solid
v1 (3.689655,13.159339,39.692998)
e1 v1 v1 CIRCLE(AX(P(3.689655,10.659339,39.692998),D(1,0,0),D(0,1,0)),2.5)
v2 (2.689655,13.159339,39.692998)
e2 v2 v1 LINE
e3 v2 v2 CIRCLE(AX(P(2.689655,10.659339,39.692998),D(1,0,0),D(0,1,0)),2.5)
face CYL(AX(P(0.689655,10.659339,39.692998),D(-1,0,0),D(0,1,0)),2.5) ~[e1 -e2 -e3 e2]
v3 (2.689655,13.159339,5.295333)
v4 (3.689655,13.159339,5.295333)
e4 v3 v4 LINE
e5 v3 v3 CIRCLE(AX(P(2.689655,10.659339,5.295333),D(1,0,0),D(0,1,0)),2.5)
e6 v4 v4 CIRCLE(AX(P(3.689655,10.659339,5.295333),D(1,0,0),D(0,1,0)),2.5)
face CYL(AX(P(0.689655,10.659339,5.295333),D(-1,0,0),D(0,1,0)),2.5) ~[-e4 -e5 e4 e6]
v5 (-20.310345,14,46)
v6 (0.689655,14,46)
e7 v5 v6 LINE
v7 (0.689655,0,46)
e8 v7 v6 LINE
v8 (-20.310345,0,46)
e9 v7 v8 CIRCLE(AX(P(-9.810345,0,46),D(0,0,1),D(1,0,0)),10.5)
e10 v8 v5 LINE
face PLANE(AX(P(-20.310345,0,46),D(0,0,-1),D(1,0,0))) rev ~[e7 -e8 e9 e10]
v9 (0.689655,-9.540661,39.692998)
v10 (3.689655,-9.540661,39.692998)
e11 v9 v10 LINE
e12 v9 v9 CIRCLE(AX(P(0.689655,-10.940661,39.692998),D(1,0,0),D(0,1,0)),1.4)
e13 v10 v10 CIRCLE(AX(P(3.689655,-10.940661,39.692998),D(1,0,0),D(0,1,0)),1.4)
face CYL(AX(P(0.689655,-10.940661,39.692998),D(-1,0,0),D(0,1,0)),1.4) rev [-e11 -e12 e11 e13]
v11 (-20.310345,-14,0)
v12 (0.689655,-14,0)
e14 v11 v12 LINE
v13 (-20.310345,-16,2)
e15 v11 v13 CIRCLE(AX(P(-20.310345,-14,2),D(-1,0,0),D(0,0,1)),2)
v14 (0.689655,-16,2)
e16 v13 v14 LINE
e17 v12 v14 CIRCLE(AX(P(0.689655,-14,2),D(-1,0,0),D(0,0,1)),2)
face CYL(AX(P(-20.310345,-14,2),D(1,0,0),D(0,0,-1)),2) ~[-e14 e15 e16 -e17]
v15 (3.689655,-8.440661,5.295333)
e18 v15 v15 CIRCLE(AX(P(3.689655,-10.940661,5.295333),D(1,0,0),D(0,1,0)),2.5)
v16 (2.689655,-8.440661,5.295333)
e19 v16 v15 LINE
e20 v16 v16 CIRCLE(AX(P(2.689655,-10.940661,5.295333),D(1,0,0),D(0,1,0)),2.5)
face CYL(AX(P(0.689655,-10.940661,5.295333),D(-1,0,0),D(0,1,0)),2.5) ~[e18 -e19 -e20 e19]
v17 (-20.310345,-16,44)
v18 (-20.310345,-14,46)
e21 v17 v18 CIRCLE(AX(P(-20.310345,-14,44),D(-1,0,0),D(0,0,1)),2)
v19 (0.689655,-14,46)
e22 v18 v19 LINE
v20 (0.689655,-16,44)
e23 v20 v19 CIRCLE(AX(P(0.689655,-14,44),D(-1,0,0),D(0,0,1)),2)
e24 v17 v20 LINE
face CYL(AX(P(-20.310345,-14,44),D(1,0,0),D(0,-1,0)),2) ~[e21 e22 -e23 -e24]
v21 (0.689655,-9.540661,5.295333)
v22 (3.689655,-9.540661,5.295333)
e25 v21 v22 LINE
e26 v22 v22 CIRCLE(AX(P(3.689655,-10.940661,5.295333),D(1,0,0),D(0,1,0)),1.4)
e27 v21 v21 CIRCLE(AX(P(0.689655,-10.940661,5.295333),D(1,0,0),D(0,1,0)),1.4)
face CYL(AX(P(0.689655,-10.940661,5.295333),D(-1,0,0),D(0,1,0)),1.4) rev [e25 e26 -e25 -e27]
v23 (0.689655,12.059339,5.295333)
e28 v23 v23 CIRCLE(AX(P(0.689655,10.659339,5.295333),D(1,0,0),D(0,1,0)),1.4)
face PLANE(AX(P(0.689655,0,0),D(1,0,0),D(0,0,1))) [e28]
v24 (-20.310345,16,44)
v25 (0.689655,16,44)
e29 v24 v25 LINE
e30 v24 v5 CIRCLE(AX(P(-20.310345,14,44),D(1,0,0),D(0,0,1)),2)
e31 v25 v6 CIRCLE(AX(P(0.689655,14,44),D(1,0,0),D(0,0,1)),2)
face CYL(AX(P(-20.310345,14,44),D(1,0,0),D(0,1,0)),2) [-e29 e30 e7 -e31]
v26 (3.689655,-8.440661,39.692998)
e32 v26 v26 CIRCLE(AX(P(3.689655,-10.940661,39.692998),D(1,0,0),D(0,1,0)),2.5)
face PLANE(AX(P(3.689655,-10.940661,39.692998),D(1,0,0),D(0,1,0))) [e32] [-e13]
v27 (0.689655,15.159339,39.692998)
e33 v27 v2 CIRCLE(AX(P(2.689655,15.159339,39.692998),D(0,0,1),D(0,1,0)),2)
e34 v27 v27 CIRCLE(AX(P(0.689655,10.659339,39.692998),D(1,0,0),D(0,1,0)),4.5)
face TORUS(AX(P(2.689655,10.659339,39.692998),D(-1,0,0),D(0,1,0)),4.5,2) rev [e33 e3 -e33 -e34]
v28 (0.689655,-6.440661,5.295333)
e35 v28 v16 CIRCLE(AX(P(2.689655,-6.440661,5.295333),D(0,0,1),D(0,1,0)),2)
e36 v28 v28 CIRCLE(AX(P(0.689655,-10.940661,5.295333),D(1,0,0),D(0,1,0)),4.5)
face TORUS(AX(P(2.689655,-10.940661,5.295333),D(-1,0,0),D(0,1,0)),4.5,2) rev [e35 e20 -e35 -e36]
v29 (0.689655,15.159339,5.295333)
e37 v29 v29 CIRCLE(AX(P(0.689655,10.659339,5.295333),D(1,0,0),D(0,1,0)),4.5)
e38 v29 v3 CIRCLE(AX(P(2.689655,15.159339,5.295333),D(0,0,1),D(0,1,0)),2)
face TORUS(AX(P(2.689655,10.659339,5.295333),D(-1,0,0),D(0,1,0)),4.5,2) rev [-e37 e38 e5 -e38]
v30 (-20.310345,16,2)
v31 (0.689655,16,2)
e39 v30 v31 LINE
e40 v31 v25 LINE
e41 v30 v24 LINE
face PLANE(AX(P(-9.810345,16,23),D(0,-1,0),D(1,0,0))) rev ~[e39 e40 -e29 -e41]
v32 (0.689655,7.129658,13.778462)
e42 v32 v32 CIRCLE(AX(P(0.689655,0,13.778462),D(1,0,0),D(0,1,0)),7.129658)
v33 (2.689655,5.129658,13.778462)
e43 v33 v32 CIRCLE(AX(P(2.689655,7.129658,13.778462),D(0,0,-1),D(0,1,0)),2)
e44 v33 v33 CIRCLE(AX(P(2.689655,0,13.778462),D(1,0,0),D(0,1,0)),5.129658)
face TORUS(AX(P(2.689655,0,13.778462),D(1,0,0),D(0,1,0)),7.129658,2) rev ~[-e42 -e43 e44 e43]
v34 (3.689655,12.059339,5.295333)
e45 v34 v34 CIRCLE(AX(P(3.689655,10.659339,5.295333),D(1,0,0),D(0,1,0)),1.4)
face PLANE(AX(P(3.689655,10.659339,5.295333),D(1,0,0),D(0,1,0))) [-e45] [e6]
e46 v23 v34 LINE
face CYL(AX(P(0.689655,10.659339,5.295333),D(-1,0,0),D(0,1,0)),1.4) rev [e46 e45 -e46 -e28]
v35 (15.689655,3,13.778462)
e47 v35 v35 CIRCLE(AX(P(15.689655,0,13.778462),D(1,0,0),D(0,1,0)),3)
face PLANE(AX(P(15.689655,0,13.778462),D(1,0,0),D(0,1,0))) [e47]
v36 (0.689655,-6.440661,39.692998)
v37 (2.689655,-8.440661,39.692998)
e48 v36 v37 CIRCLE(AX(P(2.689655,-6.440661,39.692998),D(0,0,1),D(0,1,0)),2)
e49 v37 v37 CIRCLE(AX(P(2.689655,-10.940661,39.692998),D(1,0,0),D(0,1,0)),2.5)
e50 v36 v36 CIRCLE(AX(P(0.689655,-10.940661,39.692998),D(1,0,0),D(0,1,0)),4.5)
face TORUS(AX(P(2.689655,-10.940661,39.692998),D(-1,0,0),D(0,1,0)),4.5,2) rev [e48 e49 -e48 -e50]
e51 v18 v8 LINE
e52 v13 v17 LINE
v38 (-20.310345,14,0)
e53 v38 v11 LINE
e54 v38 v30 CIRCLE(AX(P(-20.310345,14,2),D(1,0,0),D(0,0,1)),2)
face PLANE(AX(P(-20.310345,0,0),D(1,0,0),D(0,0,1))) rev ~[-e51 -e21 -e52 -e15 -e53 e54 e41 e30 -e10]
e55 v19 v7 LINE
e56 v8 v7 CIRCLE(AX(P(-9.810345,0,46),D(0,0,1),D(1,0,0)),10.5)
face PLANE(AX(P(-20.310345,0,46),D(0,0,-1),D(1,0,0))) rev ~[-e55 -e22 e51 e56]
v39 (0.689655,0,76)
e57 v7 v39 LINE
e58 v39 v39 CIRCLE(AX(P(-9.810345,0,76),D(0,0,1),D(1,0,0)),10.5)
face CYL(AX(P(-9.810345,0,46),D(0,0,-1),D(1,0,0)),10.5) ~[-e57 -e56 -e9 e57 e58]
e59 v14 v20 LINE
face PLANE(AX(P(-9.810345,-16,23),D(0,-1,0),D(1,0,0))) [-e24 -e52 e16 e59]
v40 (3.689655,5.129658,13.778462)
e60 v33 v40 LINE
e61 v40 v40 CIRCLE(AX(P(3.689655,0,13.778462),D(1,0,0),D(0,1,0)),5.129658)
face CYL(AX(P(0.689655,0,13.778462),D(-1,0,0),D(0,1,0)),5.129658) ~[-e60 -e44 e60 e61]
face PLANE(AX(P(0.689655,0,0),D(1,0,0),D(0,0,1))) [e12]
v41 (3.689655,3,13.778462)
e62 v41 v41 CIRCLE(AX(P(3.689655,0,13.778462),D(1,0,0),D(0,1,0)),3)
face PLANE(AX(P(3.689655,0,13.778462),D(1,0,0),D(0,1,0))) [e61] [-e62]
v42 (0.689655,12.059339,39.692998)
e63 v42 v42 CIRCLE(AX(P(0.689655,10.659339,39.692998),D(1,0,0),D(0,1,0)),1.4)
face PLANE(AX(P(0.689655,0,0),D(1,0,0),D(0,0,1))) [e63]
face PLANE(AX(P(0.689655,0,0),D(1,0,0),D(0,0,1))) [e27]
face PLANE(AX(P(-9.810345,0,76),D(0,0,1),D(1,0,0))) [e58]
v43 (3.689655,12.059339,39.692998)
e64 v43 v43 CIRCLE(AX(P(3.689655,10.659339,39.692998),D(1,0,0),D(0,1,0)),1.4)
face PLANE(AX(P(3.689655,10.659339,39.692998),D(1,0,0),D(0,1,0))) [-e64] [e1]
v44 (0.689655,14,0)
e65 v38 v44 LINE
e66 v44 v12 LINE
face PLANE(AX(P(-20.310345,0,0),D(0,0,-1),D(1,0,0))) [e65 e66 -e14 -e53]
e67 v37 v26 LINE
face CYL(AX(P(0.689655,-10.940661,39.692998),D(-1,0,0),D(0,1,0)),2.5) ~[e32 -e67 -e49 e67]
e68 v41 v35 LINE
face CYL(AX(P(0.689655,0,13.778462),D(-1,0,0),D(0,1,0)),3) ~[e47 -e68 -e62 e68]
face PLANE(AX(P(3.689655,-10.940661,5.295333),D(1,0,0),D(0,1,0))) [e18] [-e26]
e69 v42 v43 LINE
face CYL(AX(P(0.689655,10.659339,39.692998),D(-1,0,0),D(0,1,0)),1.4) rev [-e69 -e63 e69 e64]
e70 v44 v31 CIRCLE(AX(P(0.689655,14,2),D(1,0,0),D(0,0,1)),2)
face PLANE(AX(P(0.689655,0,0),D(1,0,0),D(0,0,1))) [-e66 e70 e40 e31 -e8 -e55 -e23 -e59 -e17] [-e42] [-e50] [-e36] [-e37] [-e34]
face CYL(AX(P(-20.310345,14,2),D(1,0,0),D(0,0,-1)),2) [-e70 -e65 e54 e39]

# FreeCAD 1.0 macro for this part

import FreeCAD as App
import Part
import Sketcher
Q = App.Units.Quantity


def edges_at(feature, points):
    """Names of the edges that pass closest to the given points."""
    edges = feature.Shape.Edges
    near = lambda p: min(range(len(edges)), key=lambda i: edges[i].distToShape(Part.Vertex(*p))[0])
    return sorted({f"Edge{near(p) + 1}" for p in points})

doc = App.newDocument("Part")
body = doc.addObject("PartDesign::Body", "Body")

# Sketch on XZ plane
sketch1 = body.newObject("Sketcher::SketchObject", "Sketch")
sketch1.AttachmentSupport = (doc.getObject("XZ_Plane"), [""])
sketch1.MapMode = "FlatFace"
sketch1.addGeometry(Part.LineSegment(App.Vector(-20, 46, 0), App.Vector(-20, 0, 0)), False)
sketch1.addGeometry(Part.LineSegment(App.Vector(-20, 0, 0), App.Vector(1, 0, 0)), False)
sketch1.addGeometry(Part.LineSegment(App.Vector(1, 0, 0), App.Vector(1, 46, 0)), False)
sketch1.addGeometry(Part.LineSegment(App.Vector(1, 46, 0), App.Vector(-20, 46, 0)), False)
sketch1.addConstraint(Sketcher.Constraint("Coincident", 0, 2, 1, 1))
sketch1.addConstraint(Sketcher.Constraint("Coincident", 1, 2, 2, 1))
sketch1.addConstraint(Sketcher.Constraint("Coincident", 2, 2, 3, 1))
sketch1.addConstraint(Sketcher.Constraint("Coincident", 3, 2, 0, 1))
sketch1.addConstraint(Sketcher.Constraint("Vertical", 0))
sketch1.addConstraint(Sketcher.Constraint("Horizontal", 1))
sketch1.addConstraint(Sketcher.Constraint("Vertical", 2))
sketch1.addConstraint(Sketcher.Constraint("Horizontal", 3))
sketch1.addConstraint(Sketcher.Constraint("PointOnObject", 0, 2, -1))
sketch1.addConstraint(Sketcher.Constraint("DistanceX", 1, 1, 1, 2, Q("21 mm")))
sketch1.addConstraint(Sketcher.Constraint("DistanceY", 0, 2, 0, 1, Q("46 mm")))
sketch1.addConstraint(Sketcher.Constraint("DistanceX", 0, 2, -1, 1, Q("20.310345 mm")))
pad1 = body.newObject("PartDesign::Pad", "Pad")
pad1.Profile = sketch1
pad1.Length = 32
pad1.Midplane = True

# Sketch on YZ plane
sketch2 = body.newObject("Sketcher::SketchObject", "Sketch001")
sketch2.AttachmentSupport = (doc.getObject("YZ_Plane"), [""])
sketch2.MapMode = "FlatFace"
sketch2.AttachmentOffset = App.Placement(App.Vector(0, 0, 0.689655), App.Rotation())
sketch2.addGeometry(Part.Circle(App.Vector(0, 13.8, 0), App.Vector(0, 0, 1), 3), False)
sketch2.addConstraint(Sketcher.Constraint("PointOnObject", 0, 3, -2))
sketch2.addConstraint(Sketcher.Constraint("Diameter", 0, Q("6 mm")))
sketch2.addConstraint(Sketcher.Constraint("DistanceY", -1, 1, 0, 3, Q("13.778462 mm")))
pad2 = body.newObject("PartDesign::Pad", "Pad001")
pad2.Profile = sketch2
pad2.Length = 15

# Sketch on YZ plane
sketch3 = body.newObject("Sketcher::SketchObject", "Sketch002")
sketch3.AttachmentSupport = (doc.getObject("YZ_Plane"), [""])
sketch3.MapMode = "FlatFace"
sketch3.AttachmentOffset = App.Placement(App.Vector(0, 0, 0.689655), App.Rotation())
sketch3.addGeometry(Part.Circle(App.Vector(-10.9, 39.7, 0), App.Vector(0, 0, 1), 2.5), False)
sketch3.addGeometry(Part.Circle(App.Vector(-10.9, 39.7, 0), App.Vector(0, 0, 1), 1.4), False)
sketch3.addGeometry(Part.Circle(App.Vector(-10.9, 5.3, 0), App.Vector(0, 0, 1), 2.5), False)
sketch3.addGeometry(Part.Circle(App.Vector(-10.9, 5.3, 0), App.Vector(0, 0, 1), 1.4), False)
sketch3.addGeometry(Part.Circle(App.Vector(10.7, 5.3, 0), App.Vector(0, 0, 1), 2.5), False)
sketch3.addGeometry(Part.Circle(App.Vector(10.7, 5.3, 0), App.Vector(0, 0, 1), 1.4), False)
sketch3.addGeometry(Part.Circle(App.Vector(10.7, 39.7, 0), App.Vector(0, 0, 1), 2.5), False)
sketch3.addGeometry(Part.Circle(App.Vector(10.7, 39.7, 0), App.Vector(0, 0, 1), 1.4), False)
sketch3.addGeometry(Part.Circle(App.Vector(0, 13.8, 0), App.Vector(0, 0, 1), 5.1), False)
sketch3.addGeometry(Part.Circle(App.Vector(0, 13.8, 0), App.Vector(0, 0, 1), 3), False)
sketch3.addConstraint(Sketcher.Constraint("Coincident", 1, 3, 0, 3))
sketch3.addConstraint(Sketcher.Constraint("Coincident", 3, 3, 2, 3))
sketch3.addConstraint(Sketcher.Constraint("Coincident", 5, 3, 4, 3))
sketch3.addConstraint(Sketcher.Constraint("Coincident", 7, 3, 6, 3))
sketch3.addConstraint(Sketcher.Constraint("Coincident", 9, 3, 8, 3))
sketch3.addConstraint(Sketcher.Constraint("Equal", 0, 2))
sketch3.addConstraint(Sketcher.Constraint("Equal", 1, 3))
sketch3.addConstraint(Sketcher.Constraint("Equal", 2, 4))
sketch3.addConstraint(Sketcher.Constraint("Equal", 3, 5))
sketch3.addConstraint(Sketcher.Constraint("Equal", 4, 6))
sketch3.addConstraint(Sketcher.Constraint("Equal", 5, 7))
sketch3.addConstraint(Sketcher.Constraint("PointOnObject", 8, 3, -2))
sketch3.addConstraint(Sketcher.Constraint("Horizontal", 3, 3, 4, 3))
sketch3.addConstraint(Sketcher.Constraint("Horizontal", 1, 3, 6, 3))
sketch3.addConstraint(Sketcher.Constraint("Vertical", 1, 3, 2, 3))
sketch3.addConstraint(Sketcher.Constraint("Vertical", 5, 3, 6, 3))
sketch3.addConstraint(Sketcher.Constraint("Diameter", 0, Q("5 mm")))
sketch3.addConstraint(Sketcher.Constraint("Diameter", 9, Q("6 mm")))
sketch3.addConstraint(Sketcher.Constraint("Diameter", 1, Q("2.8 mm")))
sketch3.addConstraint(Sketcher.Constraint("DistanceX", 2, 3, 4, 3, Q("21.6 mm")))
sketch3.addConstraint(Sketcher.Constraint("Diameter", 8, Q("10.259316 mm")))
sketch3.addConstraint(Sketcher.Constraint("DistanceY", -1, 1, 0, 3, Q("39.692998 mm")))
sketch3.addConstraint(Sketcher.Constraint("DistanceX", 0, 3, -1, 1, Q("10.940661 mm")))
sketch3.addConstraint(Sketcher.Constraint("DistanceY", -1, 1, 8, 3, Q("13.778462 mm")))
sketch3.addConstraint(Sketcher.Constraint("DistanceY", 4, 3, 8, 3, Q("8.483129 mm")))
pad3 = body.newObject("PartDesign::Pad", "Pad002")
pad3.Profile = sketch3
pad3.Length = 3
doc.recompute()

fillet = body.newObject("PartDesign::Fillet", "Fillet")
fillet.Base = (pad3, edges_at(pad3, [
    (0.69, -13.441, 39.693),
    (0.69, -13.441, 5.295),
    (0.69, -5.13, 13.778),
    (0.69, 8.159, 5.295),
    (0.69, 8.159, 39.693),
    (-9.81, -16, 46),
    (-9.81, -16, 0),
    (-9.81, 16, 0),
    (-9.81, 16, 46),
]))
fillet.Radius = 2

# Sketch on XY plane
sketch4 = body.newObject("Sketcher::SketchObject", "Sketch003")
sketch4.AttachmentSupport = (doc.getObject("XY_Plane"), [""])
sketch4.MapMode = "FlatFace"
sketch4.AttachmentOffset = App.Placement(App.Vector(0, 0, 46), App.Rotation())
sketch4.addGeometry(Part.Circle(App.Vector(-10, 0, 0), App.Vector(0, 0, 1), 10), False)
sketch4.addConstraint(Sketcher.Constraint("PointOnObject", 0, 3, -1))
sketch4.addConstraint(Sketcher.Constraint("Diameter", 0, Q("21 mm")))
sketch4.addConstraint(Sketcher.Constraint("DistanceX", 0, 3, -1, 1, Q("9.810345 mm")))
pad4 = body.newObject("PartDesign::Pad", "Pad003")
pad4.Profile = sketch4
pad4.Length = 30

doc.recompute()
